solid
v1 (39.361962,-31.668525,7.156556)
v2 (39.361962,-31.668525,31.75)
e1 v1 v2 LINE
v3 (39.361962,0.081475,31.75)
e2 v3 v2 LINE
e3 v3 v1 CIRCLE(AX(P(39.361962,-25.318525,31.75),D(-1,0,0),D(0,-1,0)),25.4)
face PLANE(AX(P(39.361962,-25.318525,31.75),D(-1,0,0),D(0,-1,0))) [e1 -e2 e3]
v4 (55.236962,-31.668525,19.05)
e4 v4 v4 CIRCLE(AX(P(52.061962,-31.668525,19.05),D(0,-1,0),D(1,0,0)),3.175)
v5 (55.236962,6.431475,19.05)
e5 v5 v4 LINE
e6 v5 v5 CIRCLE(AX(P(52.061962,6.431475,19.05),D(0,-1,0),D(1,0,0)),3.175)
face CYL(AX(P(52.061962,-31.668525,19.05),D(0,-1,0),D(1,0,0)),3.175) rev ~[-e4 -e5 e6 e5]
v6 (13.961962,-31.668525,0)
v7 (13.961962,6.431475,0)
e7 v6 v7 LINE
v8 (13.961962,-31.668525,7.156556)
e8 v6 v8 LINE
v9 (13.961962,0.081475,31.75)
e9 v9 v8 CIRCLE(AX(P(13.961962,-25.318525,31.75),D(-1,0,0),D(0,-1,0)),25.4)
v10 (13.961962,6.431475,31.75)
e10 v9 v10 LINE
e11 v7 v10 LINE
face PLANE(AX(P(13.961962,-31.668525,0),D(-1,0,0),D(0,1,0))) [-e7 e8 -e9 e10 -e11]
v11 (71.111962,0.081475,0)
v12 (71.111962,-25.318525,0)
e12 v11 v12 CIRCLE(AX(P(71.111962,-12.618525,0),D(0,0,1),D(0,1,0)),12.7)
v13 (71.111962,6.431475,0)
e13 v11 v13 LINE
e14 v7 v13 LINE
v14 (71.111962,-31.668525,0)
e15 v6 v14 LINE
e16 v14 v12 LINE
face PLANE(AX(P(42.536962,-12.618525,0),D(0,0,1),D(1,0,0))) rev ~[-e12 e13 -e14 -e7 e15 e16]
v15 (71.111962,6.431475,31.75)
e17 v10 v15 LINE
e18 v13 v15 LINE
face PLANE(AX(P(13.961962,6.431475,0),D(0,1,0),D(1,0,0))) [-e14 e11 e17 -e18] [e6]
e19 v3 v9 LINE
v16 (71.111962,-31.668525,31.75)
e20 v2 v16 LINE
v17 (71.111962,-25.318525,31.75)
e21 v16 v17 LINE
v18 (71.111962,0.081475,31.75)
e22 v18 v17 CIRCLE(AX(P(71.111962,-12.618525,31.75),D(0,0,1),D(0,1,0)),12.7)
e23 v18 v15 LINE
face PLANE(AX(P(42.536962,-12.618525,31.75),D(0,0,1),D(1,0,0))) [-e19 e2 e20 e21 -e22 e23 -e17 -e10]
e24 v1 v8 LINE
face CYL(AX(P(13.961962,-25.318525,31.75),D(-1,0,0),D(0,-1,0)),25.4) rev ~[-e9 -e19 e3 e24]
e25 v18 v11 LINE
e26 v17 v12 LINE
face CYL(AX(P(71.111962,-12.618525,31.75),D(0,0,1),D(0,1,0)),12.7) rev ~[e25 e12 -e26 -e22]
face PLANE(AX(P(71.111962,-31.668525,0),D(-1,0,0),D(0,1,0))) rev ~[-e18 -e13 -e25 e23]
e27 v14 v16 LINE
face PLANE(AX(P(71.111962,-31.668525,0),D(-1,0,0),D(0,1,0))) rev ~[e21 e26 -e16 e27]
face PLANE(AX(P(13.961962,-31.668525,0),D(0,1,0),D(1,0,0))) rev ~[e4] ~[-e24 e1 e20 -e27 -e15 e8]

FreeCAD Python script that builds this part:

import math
import FreeCAD as App
import Part
import Sketcher
Q = App.Units.Quantity

doc = App.newDocument("Part")
params = doc.addObject("Spreadsheet::Sheet", "Params")
for row, (alias, value) in enumerate([
    ("sketch1_height", "1.5 in"),
    ("sketch1_width", "2.25 in"),
    ("pad1_length", "1.25 in"),
    ("sketch2_radius", "0.5 in"),
    ("pocket1_length", "1.25 in"),
    ("sketch3_diameter", "0.25 in"),
    ("pocket2_length", "1.49 in"),
    ("sketch4_diameter", "0.25 in"),
    ("pocket3_length", "1.5 in"),
    ("sketch5_diameter", "2 in"),
    ("pocket4_length", "1 in"),
], start=1):
    params.set(f"A{row}", alias)
    params.set(f"B{row}", "=" + value)
    params.setAlias(f"B{row}", alias)

body = doc.addObject("PartDesign::Body", "Body")

sketch1 = body.newObject("Sketcher::SketchObject", "Sketch")
sketch1.AttachmentSupport = (doc.getObject("XY_Plane"), [""])
sketch1.MapMode = "FlatFace"
sketch1.addGeometry([
    Part.LineSegment(App.Vector(14, 6, 0), App.Vector(14, -32, 0)),
    Part.LineSegment(App.Vector(14, -32, 0), App.Vector(71, -32, 0)),
    Part.LineSegment(App.Vector(71, -32, 0), App.Vector(71, 6, 0)),
    Part.LineSegment(App.Vector(71, 6, 0), App.Vector(14, 6, 0)),
], False)
sketch1.addConstraint([
    Sketcher.Constraint("Coincident", 0, 2, 1, 1),
    Sketcher.Constraint("Coincident", 1, 2, 2, 1),
    Sketcher.Constraint("Coincident", 2, 2, 3, 1),
    Sketcher.Constraint("Coincident", 3, 2, 0, 1),
    Sketcher.Constraint("Vertical", 0),
    Sketcher.Constraint("Horizontal", 1),
    Sketcher.Constraint("Vertical", 2),
    Sketcher.Constraint("Horizontal", 3),
    Sketcher.Constraint("DistanceY", 0, 2, 0, 1, Q("1.5 in")),
    Sketcher.Constraint("DistanceX", 1, 1, 1, 2, Q("2.25 in")),
    Sketcher.Constraint("DistanceX", -1, 1, 0, 2, Q("13.961962 mm")),
    Sketcher.Constraint("DistanceY", 0, 2, -1, 1, Q("31.668525 mm")),
])
sketch1.setExpression("Constraints[8]", "Params.sketch1_height")
sketch1.setExpression("Constraints[9]", "Params.sketch1_width")
pad1 = body.newObject("PartDesign::Pad", "Pad")
pad1.Profile = sketch1
pad1.setExpression("Length", "Params.pad1_length")

sketch2 = body.newObject("Sketcher::SketchObject", "Sketch001")
sketch2.AttachmentSupport = (doc.getObject("XY_Plane"), [""])
sketch2.MapMode = "FlatFace"
sketch2.AttachmentOffset = App.Placement(App.Vector(0, 0, 1.25 * 25.4), App.Rotation())
sketch2.addGeometry([
    Part.ArcOfCircle(Part.Circle(App.Vector(71, -13, 0), App.Vector(0, 0, 1), 13), math.radians(-90), math.radians(0)),
    Part.ArcOfCircle(Part.Circle(App.Vector(71, -13, 0), App.Vector(0, 0, 1), 13), math.radians(0), math.radians(90)),
    Part.ArcOfCircle(Part.Circle(App.Vector(71, -13, 0), App.Vector(0, 0, 1), 13), math.radians(90), math.radians(270)),
], False)
sketch2.addConstraint([
    Sketcher.Constraint("Tangent", 0, 2, 1, 1),
    Sketcher.Constraint("Tangent", 1, 2, 2, 1),
    Sketcher.Constraint("Tangent", 2, 2, 0, 1),
    Sketcher.Constraint("Horizontal", 2, 3, 0, 2),
    Sketcher.Constraint("Vertical", 2, 3, 1, 2),
    Sketcher.Constraint("Vertical", 1, 2, 2, 2),
    Sketcher.Constraint("Radius", 0, Q("0.5 in")),
    Sketcher.Constraint("DistanceX", -1, 1, 0, 3, Q("71.111962 mm")),
    Sketcher.Constraint("DistanceY", 0, 3, -1, 1, Q("12.618525 mm")),
])
sketch2.setExpression("Constraints[6]", "Params.sketch2_radius")
pocket1 = body.newObject("PartDesign::Pocket", "Pocket")
pocket1.Profile = sketch2
pocket1.setExpression("Length", "Params.pocket1_length")

sketch3 = body.newObject("Sketcher::SketchObject", "Sketch002")
sketch3.AttachmentSupport = (doc.getObject("XZ_Plane"), [""])
sketch3.MapMode = "FlatFace"
sketch3.AttachmentOffset = App.Placement(App.Vector(0, 0, 31.668525), App.Rotation())
sketch3.addGeometry(Part.Circle(App.Vector(52.1, 19.1, 0), App.Vector(0, 0, 1), 3.2), False)
sketch3.addConstraint([
    Sketcher.Constraint("Diameter", 0, Q("0.25 in")),
    Sketcher.Constraint("DistanceY", -1, 1, 0, 3, Q("0.75 in")),
    Sketcher.Constraint("DistanceX", -1, 1, 0, 3, Q("52.061962 mm")),
])
sketch3.setExpression("Constraints[0]", "Params.sketch3_diameter")
pocket2 = body.newObject("PartDesign::Pocket", "Pocket001")
pocket2.Profile = sketch3
pocket2.setExpression("Length", "Params.pocket2_length")

sketch4 = body.newObject("Sketcher::SketchObject", "Sketch003")
sketch4.AttachmentSupport = (doc.getObject("XZ_Plane"), [""])
sketch4.MapMode = "FlatFace"
sketch4.AttachmentOffset = App.Placement(App.Vector(0, 0, 31.668525), App.Rotation())
sketch4.addGeometry(Part.Circle(App.Vector(52.1, 19.1, 0), App.Vector(0, 0, 1), 3.2), False)
sketch4.addConstraint([
    Sketcher.Constraint("Diameter", 0, Q("0.25 in")),
    Sketcher.Constraint("DistanceY", -1, 1, 0, 3, Q("0.75 in")),
    Sketcher.Constraint("DistanceX", -1, 1, 0, 3, Q("52.061962 mm")),
])
sketch4.setExpression("Constraints[0]", "Params.sketch4_diameter")
pocket3 = body.newObject("PartDesign::Pocket", "Pocket002")
pocket3.Profile = sketch4
pocket3.setExpression("Length", "Params.pocket3_length")

sketch5 = body.newObject("Sketcher::SketchObject", "Sketch004")
sketch5.AttachmentSupport = (doc.getObject("YZ_Plane"), [""])
sketch5.MapMode = "FlatFace"
sketch5.AttachmentOffset = App.Placement(App.Vector(0, 0, 13.961962), App.Rotation())
sketch5.addGeometry(Part.Circle(App.Vector(-25, 32, 0), App.Vector(0, 0, 1), 25), False)
sketch5.addConstraint([
    Sketcher.Constraint("Diameter", 0, Q("2 in")),
    Sketcher.Constraint("DistanceY", -1, 1, 0, 3, Q("1.25 in")),
    Sketcher.Constraint("DistanceX", 0, 3, -1, 1, Q("25.318525 mm")),
])
sketch5.setExpression("Constraints[0]", "Params.sketch5_diameter")
pocket4 = body.newObject("PartDesign::Pocket", "Pocket003")
pocket4.Profile = sketch5
pocket4.setExpression("Length", "Params.pocket4_length")
pocket4.Reversed = True

doc.recompute()
